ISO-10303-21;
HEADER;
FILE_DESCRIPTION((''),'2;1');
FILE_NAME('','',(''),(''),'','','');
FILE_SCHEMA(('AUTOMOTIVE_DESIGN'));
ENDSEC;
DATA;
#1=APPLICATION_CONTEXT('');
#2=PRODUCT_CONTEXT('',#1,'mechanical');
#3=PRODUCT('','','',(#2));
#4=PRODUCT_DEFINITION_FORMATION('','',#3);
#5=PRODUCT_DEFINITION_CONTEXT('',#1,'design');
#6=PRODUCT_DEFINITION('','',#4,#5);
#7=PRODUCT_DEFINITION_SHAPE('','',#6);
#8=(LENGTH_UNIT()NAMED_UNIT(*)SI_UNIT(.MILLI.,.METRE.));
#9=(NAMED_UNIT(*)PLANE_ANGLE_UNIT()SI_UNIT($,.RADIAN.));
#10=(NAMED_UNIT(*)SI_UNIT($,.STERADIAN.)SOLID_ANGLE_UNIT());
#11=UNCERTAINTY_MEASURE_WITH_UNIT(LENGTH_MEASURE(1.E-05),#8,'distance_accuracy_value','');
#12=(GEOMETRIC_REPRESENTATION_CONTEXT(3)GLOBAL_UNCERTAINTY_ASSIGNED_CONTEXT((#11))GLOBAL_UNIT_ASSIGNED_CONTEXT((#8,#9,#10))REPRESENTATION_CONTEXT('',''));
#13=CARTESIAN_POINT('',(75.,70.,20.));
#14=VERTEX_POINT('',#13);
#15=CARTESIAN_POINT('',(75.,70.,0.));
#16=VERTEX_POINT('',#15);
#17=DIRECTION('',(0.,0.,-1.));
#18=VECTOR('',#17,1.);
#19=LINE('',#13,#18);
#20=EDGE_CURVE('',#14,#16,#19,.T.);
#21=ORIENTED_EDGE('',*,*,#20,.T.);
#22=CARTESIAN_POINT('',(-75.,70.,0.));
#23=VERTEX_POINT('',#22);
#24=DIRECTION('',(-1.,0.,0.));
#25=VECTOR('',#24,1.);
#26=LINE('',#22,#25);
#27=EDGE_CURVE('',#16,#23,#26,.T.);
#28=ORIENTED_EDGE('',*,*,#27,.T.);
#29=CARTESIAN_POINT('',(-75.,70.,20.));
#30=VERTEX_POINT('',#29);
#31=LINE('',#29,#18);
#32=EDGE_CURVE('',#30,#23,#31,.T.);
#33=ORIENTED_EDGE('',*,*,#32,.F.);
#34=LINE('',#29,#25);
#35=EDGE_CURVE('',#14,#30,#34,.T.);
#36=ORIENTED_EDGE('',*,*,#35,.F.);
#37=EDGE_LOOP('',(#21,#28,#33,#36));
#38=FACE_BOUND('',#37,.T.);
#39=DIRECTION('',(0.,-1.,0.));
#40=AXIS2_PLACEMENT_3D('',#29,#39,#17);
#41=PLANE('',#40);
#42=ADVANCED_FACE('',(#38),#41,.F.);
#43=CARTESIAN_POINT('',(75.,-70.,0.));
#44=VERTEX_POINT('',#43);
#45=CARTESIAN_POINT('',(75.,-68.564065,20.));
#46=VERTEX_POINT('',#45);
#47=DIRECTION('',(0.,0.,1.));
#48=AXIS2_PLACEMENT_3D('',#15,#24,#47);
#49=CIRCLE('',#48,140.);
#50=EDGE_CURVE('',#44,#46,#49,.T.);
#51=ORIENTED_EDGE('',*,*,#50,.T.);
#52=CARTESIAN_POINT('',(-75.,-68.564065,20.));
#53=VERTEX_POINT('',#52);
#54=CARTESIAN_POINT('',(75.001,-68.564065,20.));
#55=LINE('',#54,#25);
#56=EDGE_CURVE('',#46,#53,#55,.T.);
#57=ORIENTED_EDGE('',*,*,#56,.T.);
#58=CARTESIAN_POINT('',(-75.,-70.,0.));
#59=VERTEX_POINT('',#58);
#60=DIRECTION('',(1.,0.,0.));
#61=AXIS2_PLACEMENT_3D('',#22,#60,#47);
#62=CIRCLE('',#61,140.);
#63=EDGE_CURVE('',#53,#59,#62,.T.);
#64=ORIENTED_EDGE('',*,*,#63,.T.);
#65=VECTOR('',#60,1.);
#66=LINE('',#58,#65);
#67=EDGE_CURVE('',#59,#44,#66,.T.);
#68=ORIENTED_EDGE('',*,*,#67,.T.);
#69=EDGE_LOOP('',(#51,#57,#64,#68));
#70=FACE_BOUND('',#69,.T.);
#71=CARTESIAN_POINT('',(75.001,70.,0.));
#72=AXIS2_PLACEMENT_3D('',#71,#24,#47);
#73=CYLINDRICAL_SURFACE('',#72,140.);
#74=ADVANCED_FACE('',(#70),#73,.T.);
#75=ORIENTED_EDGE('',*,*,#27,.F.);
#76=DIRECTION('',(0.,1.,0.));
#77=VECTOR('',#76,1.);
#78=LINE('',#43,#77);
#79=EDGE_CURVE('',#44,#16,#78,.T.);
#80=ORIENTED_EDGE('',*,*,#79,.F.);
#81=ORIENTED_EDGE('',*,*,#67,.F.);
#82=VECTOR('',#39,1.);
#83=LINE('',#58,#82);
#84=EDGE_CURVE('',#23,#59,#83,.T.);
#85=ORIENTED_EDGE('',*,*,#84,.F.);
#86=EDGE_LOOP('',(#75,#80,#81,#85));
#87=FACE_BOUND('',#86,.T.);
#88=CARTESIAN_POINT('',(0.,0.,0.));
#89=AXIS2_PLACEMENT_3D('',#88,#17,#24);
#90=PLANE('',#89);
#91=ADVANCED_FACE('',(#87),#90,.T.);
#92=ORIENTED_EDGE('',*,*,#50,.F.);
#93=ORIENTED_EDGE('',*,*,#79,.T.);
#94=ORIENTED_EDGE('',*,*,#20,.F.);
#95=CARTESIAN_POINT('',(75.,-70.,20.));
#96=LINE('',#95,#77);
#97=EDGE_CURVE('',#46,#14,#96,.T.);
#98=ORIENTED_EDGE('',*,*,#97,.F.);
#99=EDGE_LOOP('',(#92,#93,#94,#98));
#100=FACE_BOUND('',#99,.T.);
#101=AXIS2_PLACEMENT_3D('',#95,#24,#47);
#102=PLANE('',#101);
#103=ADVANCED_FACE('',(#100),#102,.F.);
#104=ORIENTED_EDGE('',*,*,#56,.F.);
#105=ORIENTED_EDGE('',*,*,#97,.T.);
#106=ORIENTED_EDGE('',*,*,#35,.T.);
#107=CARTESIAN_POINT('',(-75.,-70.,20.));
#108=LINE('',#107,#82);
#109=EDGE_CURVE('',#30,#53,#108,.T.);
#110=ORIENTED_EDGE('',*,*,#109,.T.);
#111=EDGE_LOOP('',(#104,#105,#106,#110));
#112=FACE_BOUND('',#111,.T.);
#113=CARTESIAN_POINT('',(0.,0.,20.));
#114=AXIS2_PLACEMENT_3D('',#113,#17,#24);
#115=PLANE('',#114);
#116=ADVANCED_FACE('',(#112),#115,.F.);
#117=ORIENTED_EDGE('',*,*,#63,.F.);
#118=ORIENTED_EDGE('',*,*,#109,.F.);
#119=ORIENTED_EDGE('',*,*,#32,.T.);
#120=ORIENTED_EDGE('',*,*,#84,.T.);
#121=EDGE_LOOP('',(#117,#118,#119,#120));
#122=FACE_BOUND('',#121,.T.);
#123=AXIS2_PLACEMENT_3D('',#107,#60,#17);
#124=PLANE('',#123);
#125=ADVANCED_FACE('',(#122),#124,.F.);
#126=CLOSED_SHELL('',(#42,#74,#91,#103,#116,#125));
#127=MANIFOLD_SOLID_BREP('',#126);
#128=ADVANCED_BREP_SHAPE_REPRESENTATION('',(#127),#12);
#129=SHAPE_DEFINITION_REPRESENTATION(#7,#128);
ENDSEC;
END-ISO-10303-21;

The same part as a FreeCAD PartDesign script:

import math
import FreeCAD as App
import Part
import Sketcher
from FreeCAD import Vector
Q = App.Units.Quantity


def add_polygon(sketch, points):
    """Adds a closed chain of lines whose ends are joined by coincident constraints."""
    first, n = sketch.GeometryCount, len(points)
    for a, b in zip(points, points[1:] + points[:1]):
        sketch.addGeometry(Part.LineSegment(App.Vector(*a, 0), App.Vector(*b, 0)), False)
    for i in range(n):
        sketch.addConstraint(Sketcher.Constraint("Coincident", first + i, 2, first + (i + 1) % n, 1))

doc = App.newDocument("Part")
body = doc.addObject("PartDesign::Body", "Body")

sketch1 = body.newObject("Sketcher::SketchObject", "Sketch")
sketch1.AttachmentSupport = (doc.getObject("XY_Plane"), [""])
sketch1.MapMode = "FlatFace"
add_polygon(sketch1, [(-75, 70), (-75, -70), (75, -70), (75, 70)])
sketch1.addConstraint(Sketcher.Constraint("Vertical", 0))
sketch1.addConstraint(Sketcher.Constraint("Horizontal", 1))
sketch1.addConstraint(Sketcher.Constraint("Vertical", 2))
sketch1.addConstraint(Sketcher.Constraint("Horizontal", 3))
sketch1.addConstraint(Sketcher.Constraint("Symmetric", 0, 2, 2, 2, -1, 1))
sketch1.addConstraint(Sketcher.Constraint("DistanceX", 1, 1, 1, 2, Q("150 mm")))
sketch1.addConstraint(Sketcher.Constraint("DistanceY", 0, 2, 0, 1, Q("140 mm")))
pad1 = body.newObject("PartDesign::Pad", "Pad")
pad1.Profile = sketch1
pad1.Length = 20

sketch2 = body.newObject("Sketcher::SketchObject", "Sketch001")
sketch2.AttachmentSupport = (doc.getObject("YZ_Plane"), [""])
sketch2.MapMode = "FlatFace"
sketch2.AttachmentOffset = App.Placement(Vector(0, 0, -75), App.Rotation())
sketch2.addGeometry(Part.LineSegment(Vector(-70, 20, 0), Vector(-68.6, 20, 0)), False)
sketch2.addGeometry(Part.ArcOfCircle(Part.Circle(Vector(70, 0, 0), Vector(0, 0, 1), 140), math.radians(171.79), math.radians(180)), False)
sketch2.addGeometry(Part.LineSegment(Vector(-70, 0, 0), Vector(-70, 20, 0)), False)
sketch2.addConstraint(Sketcher.Constraint("Coincident", 0, 2, 1, 1))
sketch2.addConstraint(Sketcher.Constraint("Tangent", 1, 2, 2, 1))
sketch2.addConstraint(Sketcher.Constraint("Coincident", 2, 2, 0, 1))
sketch2.addConstraint(Sketcher.Constraint("Horizontal", 0))
sketch2.addConstraint(Sketcher.Constraint("Vertical", 2))
sketch2.addConstraint(Sketcher.Constraint("PointOnObject", 1, 3, -1))
sketch2.addConstraint(Sketcher.Constraint("Radius", 1, Q("140 mm")))
sketch2.addConstraint(Sketcher.Constraint("DistanceY", 2, 1, 2, 2, Q("20 mm")))
sketch2.addConstraint(Sketcher.Constraint("DistanceX", -1, 1, 1, 3, Q("70 mm")))
pocket1 = body.newObject("PartDesign::Pocket", "Pocket")
pocket1.Profile = sketch2
pocket1.Type = "UpToFirst"
pocket1.Reversed = True

doc.recompute()
